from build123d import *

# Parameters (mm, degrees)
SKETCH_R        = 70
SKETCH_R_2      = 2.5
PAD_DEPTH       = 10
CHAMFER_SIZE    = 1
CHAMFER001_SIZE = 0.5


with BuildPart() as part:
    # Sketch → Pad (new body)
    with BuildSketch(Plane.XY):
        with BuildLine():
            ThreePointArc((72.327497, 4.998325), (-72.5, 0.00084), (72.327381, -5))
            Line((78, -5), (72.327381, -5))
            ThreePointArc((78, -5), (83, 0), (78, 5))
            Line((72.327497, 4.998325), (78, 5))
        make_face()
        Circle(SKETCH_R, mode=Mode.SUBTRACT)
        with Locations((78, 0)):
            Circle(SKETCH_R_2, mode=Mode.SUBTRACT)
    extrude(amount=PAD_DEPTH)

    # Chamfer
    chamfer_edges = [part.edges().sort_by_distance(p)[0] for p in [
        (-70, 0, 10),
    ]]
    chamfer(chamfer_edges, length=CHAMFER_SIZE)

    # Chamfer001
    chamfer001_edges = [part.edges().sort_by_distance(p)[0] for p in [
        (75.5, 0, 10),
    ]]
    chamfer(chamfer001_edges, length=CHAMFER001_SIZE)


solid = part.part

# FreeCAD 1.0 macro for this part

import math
import FreeCAD as App
import Part
import Sketcher
from FreeCAD import Vector


def edges_at(feature, points):
    """Names of the edges that pass closest to the given points."""
    edges = feature.Shape.Edges
    near = lambda p: min(range(len(edges)), key=lambda i: edges[i].distToShape(Part.Vertex(*p))[0])
    return sorted({f"Edge{near(p) + 1}" for p in points})

doc = App.newDocument("Part")
params = doc.addObject("Spreadsheet::Sheet", "Params")
for row, (alias, value) in enumerate([
    ("sketch1_diameter", "140 mm"),
    ("sketch1_diameter2", "5 mm"),
    ("sketch1_radius", "5 mm"),
    ("sketch1_radius2", "72.5 mm"),
    ("pad1_length", "10 mm"),
    ("chamfer_size", "1 mm"),
    ("chamfer2_size", "0.5 mm"),
], start=1):
    params.set(f"A{row}", alias)
    params.set(f"B{row}", "=" + value)
    params.setAlias(f"B{row}", alias)

body = doc.addObject("PartDesign::Body", "Body")

# Sketch on XY plane
sketch1 = doc.addObject("Sketcher::SketchObject", "Sketch")
body.addObject(sketch1)
sketch1.AttachmentSupport = (doc.XY_Plane, [""])
sketch1.MapMode = "FlatFace"
sketch1.addGeometry(Part.ArcOfCircle(Part.Circle(Vector(0, 0.000002, 0), Vector(0, 0, 1), 72.5), math.radians(3.953244), math.radians(356.045427)), False)
sketch1.addGeometry(Part.LineSegment(Vector(72.327381, -5, 0), Vector(78, -5, 0)), False)
sketch1.addGeometry(Part.ArcOfCircle(Part.Circle(Vector(78, 0, 0), Vector(0, 0, 1), 5), math.radians(-90), math.radians(90)), False)
sketch1.addGeometry(Part.LineSegment(Vector(78, 5, 0), Vector(72.327497, 4.998325, 0)), False)
sketch1.addGeometry(Part.Circle(Vector(0, 0, 0), Vector(0, 0, 1), 70), False)
sketch1.addGeometry(Part.Circle(Vector(78, 0, 0), Vector(0, 0, 1), 2.5), False)
sketch1.addConstraint(Sketcher.Constraint("Coincident", 0, 2, 1, 1))
sketch1.addConstraint(Sketcher.Constraint("Tangent", 1, 2, 2, 1))
sketch1.addConstraint(Sketcher.Constraint("Coincident", 2, 2, 3, 1))
sketch1.addConstraint(Sketcher.Constraint("Coincident", 3, 2, 0, 1))
sketch1.addConstraint(Sketcher.Constraint("Horizontal", 1))
sketch1.addConstraint(Sketcher.Constraint("Coincident", 0, 3, -1, 1))
sketch1.addConstraint(Sketcher.Constraint("Coincident", 4, 3, -1, 1))
sketch1.addConstraint(Sketcher.Constraint("Coincident", 5, 3, 2, 3))
sketch1.addConstraint(Sketcher.Constraint("Symmetric", 1, 2, 2, 2, -1))
sketch1.addConstraint(Sketcher.Constraint("Diameter", 4, 140.0))
sketch1.addConstraint(Sketcher.Constraint("Diameter", 5, 5.0))
sketch1.addConstraint(Sketcher.Constraint("Radius", 2, 5.0))
sketch1.addConstraint(Sketcher.Constraint("Radius", 0, 72.5))
sketch1.addConstraint(Sketcher.Constraint("DistanceX", -1, 1, 2, 3, 78.0))
sketch1.addConstraint(Sketcher.Constraint("Distance", 3, 5.672503))
sketch1.setExpression("Constraints[9]", "Params.sketch1_diameter")
sketch1.setExpression("Constraints[10]", "Params.sketch1_diameter2")
sketch1.setExpression("Constraints[11]", "Params.sketch1_radius")
sketch1.setExpression("Constraints[12]", "Params.sketch1_radius2")
pad1 = doc.addObject("PartDesign::Pad", "Pad")
body.addObject(pad1)
pad1.Profile = sketch1
pad1.setExpression("Length", "Params.pad1_length")
doc.recompute()

chamfer = doc.addObject("PartDesign::Chamfer", "Chamfer")
body.addObject(chamfer)
chamfer.Base = (pad1, edges_at(pad1, [(-70, 0, 10)]))
chamfer.setExpression("Size", "Params.chamfer_size")
doc.recompute()

chamfer2 = doc.addObject("PartDesign::Chamfer", "Chamfer001")
body.addObject(chamfer2)
chamfer2.Base = (chamfer, edges_at(chamfer, [(75.5, 0, 10)]))
chamfer2.setExpression("Size", "Params.chamfer2_size")

doc.recompute()
